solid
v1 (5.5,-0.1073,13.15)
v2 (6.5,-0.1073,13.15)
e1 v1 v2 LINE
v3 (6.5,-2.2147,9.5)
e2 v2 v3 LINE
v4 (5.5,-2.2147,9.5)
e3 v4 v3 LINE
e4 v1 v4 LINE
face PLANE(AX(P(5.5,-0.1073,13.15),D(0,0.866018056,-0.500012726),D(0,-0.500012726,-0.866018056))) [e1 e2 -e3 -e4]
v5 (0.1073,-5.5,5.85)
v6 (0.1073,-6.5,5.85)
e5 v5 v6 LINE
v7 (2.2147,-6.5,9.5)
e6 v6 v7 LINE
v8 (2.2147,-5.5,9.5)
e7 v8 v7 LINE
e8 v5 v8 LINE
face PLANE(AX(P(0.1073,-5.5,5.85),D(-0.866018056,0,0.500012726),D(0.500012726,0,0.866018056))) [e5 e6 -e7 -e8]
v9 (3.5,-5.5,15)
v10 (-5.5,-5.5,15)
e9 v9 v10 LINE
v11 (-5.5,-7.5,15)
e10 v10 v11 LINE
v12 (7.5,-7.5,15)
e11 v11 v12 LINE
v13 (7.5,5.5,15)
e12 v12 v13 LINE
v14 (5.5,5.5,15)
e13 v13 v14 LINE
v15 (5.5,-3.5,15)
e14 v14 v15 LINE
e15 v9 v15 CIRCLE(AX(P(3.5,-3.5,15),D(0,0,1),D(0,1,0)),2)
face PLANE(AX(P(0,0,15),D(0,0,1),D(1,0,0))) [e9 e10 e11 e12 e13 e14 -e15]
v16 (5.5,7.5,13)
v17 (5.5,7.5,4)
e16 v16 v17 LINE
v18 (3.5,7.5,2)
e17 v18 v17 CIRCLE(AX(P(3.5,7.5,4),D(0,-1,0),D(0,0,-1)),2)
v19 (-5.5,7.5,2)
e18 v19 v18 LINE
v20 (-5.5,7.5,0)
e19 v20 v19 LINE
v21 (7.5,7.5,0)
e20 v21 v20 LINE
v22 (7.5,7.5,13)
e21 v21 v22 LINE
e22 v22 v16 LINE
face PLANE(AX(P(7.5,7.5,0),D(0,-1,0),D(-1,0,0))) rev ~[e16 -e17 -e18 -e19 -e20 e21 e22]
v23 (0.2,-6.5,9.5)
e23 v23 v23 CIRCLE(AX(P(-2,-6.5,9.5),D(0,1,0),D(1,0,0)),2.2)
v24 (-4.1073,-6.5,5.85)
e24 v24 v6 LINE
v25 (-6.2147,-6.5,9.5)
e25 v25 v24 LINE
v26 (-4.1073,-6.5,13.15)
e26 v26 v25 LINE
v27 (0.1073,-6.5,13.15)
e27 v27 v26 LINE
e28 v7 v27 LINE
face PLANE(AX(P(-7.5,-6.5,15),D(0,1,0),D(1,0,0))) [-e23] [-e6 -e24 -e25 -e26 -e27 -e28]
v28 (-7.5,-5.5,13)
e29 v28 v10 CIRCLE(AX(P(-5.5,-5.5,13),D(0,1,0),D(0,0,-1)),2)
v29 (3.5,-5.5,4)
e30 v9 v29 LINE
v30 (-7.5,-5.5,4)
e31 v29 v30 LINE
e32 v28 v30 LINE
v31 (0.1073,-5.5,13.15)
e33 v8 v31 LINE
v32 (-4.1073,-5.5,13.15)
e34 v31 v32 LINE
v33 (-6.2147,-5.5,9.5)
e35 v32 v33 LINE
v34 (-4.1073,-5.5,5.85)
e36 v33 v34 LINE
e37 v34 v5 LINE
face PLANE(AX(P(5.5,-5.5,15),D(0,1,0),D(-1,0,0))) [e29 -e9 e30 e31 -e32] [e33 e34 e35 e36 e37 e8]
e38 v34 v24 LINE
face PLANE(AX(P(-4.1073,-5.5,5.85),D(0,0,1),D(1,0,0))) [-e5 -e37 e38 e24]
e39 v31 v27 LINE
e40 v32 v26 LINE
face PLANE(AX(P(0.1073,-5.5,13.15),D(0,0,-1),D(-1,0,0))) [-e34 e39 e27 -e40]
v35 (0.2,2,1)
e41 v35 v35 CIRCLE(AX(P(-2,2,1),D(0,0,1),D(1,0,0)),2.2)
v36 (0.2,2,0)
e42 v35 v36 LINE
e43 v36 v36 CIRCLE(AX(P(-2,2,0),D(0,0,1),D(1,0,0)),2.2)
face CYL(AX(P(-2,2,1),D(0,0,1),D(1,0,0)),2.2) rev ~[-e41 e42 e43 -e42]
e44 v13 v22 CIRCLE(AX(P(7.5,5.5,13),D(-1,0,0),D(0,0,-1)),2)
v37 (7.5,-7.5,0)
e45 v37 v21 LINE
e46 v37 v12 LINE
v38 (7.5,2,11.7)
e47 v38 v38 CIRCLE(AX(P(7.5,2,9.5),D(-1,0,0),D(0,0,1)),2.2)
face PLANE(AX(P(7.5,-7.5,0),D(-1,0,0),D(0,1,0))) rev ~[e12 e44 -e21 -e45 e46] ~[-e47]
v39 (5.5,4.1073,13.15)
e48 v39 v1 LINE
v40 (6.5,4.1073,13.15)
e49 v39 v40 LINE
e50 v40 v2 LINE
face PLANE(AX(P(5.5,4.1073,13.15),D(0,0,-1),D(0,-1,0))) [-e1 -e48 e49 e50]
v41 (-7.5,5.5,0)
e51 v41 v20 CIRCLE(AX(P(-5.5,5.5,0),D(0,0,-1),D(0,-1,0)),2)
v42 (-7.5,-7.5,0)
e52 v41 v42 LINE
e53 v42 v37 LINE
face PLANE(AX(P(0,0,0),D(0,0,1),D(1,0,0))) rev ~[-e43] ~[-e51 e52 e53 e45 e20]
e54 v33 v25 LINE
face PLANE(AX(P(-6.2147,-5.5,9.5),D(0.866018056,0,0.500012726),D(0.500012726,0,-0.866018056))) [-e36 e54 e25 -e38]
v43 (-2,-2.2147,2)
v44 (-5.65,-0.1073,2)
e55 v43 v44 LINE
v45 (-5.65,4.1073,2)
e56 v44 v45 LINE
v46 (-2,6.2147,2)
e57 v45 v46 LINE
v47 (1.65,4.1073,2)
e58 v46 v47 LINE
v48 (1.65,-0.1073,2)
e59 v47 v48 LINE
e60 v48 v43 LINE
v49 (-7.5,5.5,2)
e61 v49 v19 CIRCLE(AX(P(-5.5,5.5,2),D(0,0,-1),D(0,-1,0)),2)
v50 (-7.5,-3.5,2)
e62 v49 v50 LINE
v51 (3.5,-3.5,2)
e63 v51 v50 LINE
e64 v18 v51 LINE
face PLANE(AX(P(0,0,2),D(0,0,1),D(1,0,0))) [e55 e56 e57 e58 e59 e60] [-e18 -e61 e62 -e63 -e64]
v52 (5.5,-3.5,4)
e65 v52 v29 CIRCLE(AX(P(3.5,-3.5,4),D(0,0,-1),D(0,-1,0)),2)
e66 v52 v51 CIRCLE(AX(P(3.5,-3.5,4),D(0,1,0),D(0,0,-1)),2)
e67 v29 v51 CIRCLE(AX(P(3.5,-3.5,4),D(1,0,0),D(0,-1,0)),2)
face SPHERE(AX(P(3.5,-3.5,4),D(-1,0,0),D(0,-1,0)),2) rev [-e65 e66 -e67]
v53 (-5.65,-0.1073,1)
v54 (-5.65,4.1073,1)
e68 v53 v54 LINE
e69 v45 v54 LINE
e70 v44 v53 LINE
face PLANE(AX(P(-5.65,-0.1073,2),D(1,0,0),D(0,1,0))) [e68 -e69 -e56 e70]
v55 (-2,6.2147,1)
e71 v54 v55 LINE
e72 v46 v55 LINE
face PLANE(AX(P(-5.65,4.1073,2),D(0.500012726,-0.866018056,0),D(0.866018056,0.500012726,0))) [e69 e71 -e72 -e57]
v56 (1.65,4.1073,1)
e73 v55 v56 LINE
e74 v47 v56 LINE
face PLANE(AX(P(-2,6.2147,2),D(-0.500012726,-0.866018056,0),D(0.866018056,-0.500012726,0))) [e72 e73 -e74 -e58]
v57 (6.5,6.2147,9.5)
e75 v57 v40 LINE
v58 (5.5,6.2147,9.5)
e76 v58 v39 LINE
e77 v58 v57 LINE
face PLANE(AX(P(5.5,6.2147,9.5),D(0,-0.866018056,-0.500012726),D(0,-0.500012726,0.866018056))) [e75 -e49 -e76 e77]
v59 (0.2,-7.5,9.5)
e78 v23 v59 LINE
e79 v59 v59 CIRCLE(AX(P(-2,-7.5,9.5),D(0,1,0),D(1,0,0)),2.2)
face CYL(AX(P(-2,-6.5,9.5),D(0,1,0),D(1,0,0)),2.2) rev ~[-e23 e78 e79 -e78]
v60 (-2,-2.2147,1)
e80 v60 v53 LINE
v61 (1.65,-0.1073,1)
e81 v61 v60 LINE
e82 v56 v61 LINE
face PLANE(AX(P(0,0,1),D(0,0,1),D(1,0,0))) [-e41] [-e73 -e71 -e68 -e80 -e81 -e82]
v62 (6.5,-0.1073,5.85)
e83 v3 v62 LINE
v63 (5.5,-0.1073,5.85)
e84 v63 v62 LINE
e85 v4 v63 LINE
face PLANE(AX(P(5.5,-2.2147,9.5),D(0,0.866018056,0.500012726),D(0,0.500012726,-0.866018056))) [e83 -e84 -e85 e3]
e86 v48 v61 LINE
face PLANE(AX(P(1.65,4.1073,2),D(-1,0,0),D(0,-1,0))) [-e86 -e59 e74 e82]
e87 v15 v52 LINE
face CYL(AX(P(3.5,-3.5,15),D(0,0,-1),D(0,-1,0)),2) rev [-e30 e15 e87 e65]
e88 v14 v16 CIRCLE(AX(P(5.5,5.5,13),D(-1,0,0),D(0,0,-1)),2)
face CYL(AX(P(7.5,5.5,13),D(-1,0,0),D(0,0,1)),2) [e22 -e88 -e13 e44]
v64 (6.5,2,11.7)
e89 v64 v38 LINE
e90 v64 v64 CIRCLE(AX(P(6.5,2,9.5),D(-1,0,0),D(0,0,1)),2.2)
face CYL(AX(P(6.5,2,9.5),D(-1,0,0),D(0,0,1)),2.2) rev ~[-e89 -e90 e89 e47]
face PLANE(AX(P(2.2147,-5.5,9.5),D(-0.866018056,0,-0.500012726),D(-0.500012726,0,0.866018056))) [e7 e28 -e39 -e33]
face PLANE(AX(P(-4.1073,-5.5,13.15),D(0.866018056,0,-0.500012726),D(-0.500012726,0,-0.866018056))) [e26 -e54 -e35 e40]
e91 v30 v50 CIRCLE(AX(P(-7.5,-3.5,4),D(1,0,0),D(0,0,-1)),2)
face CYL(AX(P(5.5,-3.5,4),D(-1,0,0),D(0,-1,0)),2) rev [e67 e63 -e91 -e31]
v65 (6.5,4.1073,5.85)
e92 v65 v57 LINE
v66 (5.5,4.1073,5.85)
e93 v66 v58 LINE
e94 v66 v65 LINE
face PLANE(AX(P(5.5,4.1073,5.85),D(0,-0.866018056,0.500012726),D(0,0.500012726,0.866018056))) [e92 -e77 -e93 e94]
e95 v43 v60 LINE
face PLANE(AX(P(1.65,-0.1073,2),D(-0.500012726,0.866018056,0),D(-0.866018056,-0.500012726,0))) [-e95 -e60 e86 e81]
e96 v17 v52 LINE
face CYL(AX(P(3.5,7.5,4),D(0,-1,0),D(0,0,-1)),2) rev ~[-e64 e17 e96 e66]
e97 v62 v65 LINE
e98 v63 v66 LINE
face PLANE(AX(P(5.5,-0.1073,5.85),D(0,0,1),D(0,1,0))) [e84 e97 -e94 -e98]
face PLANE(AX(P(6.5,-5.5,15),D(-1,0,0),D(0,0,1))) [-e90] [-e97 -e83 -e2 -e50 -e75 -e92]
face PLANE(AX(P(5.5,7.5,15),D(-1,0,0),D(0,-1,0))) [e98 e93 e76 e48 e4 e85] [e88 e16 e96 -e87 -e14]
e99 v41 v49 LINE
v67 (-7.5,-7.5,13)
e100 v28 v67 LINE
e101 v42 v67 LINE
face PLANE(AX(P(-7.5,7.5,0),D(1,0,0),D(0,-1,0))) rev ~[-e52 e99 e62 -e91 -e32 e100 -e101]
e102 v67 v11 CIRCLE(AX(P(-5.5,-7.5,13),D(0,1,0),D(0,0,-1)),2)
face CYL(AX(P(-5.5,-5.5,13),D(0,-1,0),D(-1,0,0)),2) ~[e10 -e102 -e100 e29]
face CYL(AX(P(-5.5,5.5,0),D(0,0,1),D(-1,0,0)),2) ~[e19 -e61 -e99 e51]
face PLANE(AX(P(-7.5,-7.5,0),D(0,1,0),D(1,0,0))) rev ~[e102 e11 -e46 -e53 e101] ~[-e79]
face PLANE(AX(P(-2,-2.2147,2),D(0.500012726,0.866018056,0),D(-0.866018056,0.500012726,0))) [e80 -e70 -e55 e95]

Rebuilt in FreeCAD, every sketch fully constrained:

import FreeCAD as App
import Part
import Sketcher
from FreeCAD import Vector
Q = App.Units.Quantity


def edges_at(feature, points):
    """Names of the edges that pass closest to the given points."""
    edges = feature.Shape.Edges
    near = lambda p: min(range(len(edges)), key=lambda i: edges[i].distToShape(Part.Vertex(*p))[0])
    return sorted({f"Edge{near(p) + 1}" for p in points})

doc = App.newDocument("Part")
body = doc.addObject("PartDesign::Body", "Body")

# Sketch on XY plane
sketch1 = body.newObject("Sketcher::SketchObject", "Sketch")
sketch1.AttachmentSupport = (doc.getObject("XY_Plane"), [""])
sketch1.MapMode = "FlatFace"
sketch1.addGeometry(Part.LineSegment(Vector(-8, 8, 0), Vector(-8, -8, 0)), False)
sketch1.addGeometry(Part.LineSegment(Vector(-8, -8, 0), Vector(8, -8, 0)), False)
sketch1.addGeometry(Part.LineSegment(Vector(8, -8, 0), Vector(8, 8, 0)), False)
sketch1.addGeometry(Part.LineSegment(Vector(8, 8, 0), Vector(-8, 8, 0)), False)
sketch1.addConstraint(Sketcher.Constraint("Coincident", 0, 2, 1, 1))
sketch1.addConstraint(Sketcher.Constraint("Coincident", 1, 2, 2, 1))
sketch1.addConstraint(Sketcher.Constraint("Coincident", 2, 2, 3, 1))
sketch1.addConstraint(Sketcher.Constraint("Coincident", 3, 2, 0, 1))
sketch1.addConstraint(Sketcher.Constraint("Vertical", 0))
sketch1.addConstraint(Sketcher.Constraint("Horizontal", 1))
sketch1.addConstraint(Sketcher.Constraint("Vertical", 2))
sketch1.addConstraint(Sketcher.Constraint("Horizontal", 3))
sketch1.addConstraint(Sketcher.Constraint("Symmetric", 0, 2, 2, 2, -1, 1))
sketch1.addConstraint(Sketcher.Constraint("Equal", 3, 0))
sketch1.addConstraint(Sketcher.Constraint("DistanceX", 1, 1, 1, 2, 15.0))
pad1 = body.newObject("PartDesign::Pad", "Pad")
pad1.Profile = sketch1
pad1.Length = 15

# Sketch on XY plane
sketch2 = body.newObject("Sketcher::SketchObject", "Sketch001")
sketch2.AttachmentSupport = (doc.getObject("XY_Plane"), [""])
sketch2.MapMode = "FlatFace"
sketch2.AttachmentOffset = App.Placement(Vector(0, 0, 15), App.Rotation())
sketch2.addGeometry(Part.LineSegment(Vector(6, 8, 0), Vector(-8, 8, 0)), False)
sketch2.addGeometry(Part.LineSegment(Vector(-8, 8, 0), Vector(-8, -6, 0)), False)
sketch2.addGeometry(Part.LineSegment(Vector(-8, -6, 0), Vector(6, -6, 0)), False)
sketch2.addGeometry(Part.LineSegment(Vector(6, -6, 0), Vector(6, 8, 0)), False)
sketch2.addConstraint(Sketcher.Constraint("Coincident", 0, 2, 1, 1))
sketch2.addConstraint(Sketcher.Constraint("Coincident", 1, 2, 2, 1))
sketch2.addConstraint(Sketcher.Constraint("Coincident", 2, 2, 3, 1))
sketch2.addConstraint(Sketcher.Constraint("Coincident", 3, 2, 0, 1))
sketch2.addConstraint(Sketcher.Constraint("Horizontal", 0))
sketch2.addConstraint(Sketcher.Constraint("Vertical", 1))
sketch2.addConstraint(Sketcher.Constraint("Horizontal", 2))
sketch2.addConstraint(Sketcher.Constraint("Vertical", 3))
sketch2.addConstraint(Sketcher.Constraint("Equal", 2, 1))
sketch2.addConstraint(Sketcher.Constraint("DistanceX", 0, 2, 0, 1, 13.0))
sketch2.addConstraint(Sketcher.Constraint("DistanceX", 0, 2, -1, 1, 7.5))
sketch2.addConstraint(Sketcher.Constraint("DistanceY", -1, 1, 0, 2, 7.5))
pocket1 = body.newObject("PartDesign::Pocket", "Pocket")
pocket1.Profile = sketch2
pocket1.Length = 13

# Sketch on YZ plane
sketch3 = body.newObject("Sketcher::SketchObject", "Sketch002")
sketch3.AttachmentSupport = (doc.getObject("YZ_Plane"), [""])
sketch3.MapMode = "FlatFace"
sketch3.AttachmentOffset = App.Placement(Vector(0, 0, 5.5), App.Rotation())
sketch3.addGeometry(Part.LineSegment(Vector(4.1, 13.2, 0), Vector(6.2, 9.5, 0)), False)
sketch3.addGeometry(Part.LineSegment(Vector(6.2, 9.5, 0), Vector(4.1, 5.8, 0)), False)
sketch3.addGeometry(Part.LineSegment(Vector(4.1, 5.8, 0), Vector(-0.1, 5.8, 0)), False)
sketch3.addGeometry(Part.LineSegment(Vector(-0.1, 5.8, 0), Vector(-2.2, 9.5, 0)), False)
sketch3.addGeometry(Part.LineSegment(Vector(-2.2, 9.5, 0), Vector(-0.1, 13.2, 0)), False)
sketch3.addGeometry(Part.LineSegment(Vector(-0.1, 13.2, 0), Vector(4.1, 13.2, 0)), False)
sketch3.addConstraint(Sketcher.Constraint("Coincident", 0, 2, 1, 1))
sketch3.addConstraint(Sketcher.Constraint("Coincident", 1, 2, 2, 1))
sketch3.addConstraint(Sketcher.Constraint("Coincident", 2, 2, 3, 1))
sketch3.addConstraint(Sketcher.Constraint("Coincident", 3, 2, 4, 1))
sketch3.addConstraint(Sketcher.Constraint("Coincident", 4, 2, 5, 1))
sketch3.addConstraint(Sketcher.Constraint("Coincident", 5, 2, 0, 1))
sketch3.addConstraint(Sketcher.Constraint("Horizontal", 2))
sketch3.addConstraint(Sketcher.Constraint("Horizontal", 5))
sketch3.addConstraint(Sketcher.Constraint("Parallel", 0, 3))
sketch3.addConstraint(Sketcher.Constraint("Parallel", 1, 4))
sketch3.addConstraint(Sketcher.Constraint("Horizontal", 0, 2, 3, 2))
sketch3.addConstraint(Sketcher.Constraint("Vertical", 2, 2, 4, 2))
sketch3.addConstraint(Sketcher.Constraint("Vertical", 1, 2, 5, 2))
sketch3.addConstraint(Sketcher.Constraint("DistanceY", 2, 2, 4, 2, 7.3))
sketch3.addConstraint(Sketcher.Constraint("Angle", 0, Q("-59.9992 deg")))
sketch3.addConstraint(Sketcher.Constraint("DistanceY", -1, 1, 0, 2, 9.5))
sketch3.addConstraint(Sketcher.Constraint("DistanceX", 2, 2, 2, 1, 4.2146))
sketch3.addConstraint(Sketcher.Constraint("DistanceX", -1, 1, 0, 2, 6.2147))
pocket2 = body.newObject("PartDesign::Pocket", "Pocket001")
pocket2.Profile = sketch3
pocket2.Length = 1
pocket2.Reversed = True

# Sketch on YZ plane
sketch4 = body.newObject("Sketcher::SketchObject", "Sketch003")
sketch4.AttachmentSupport = (doc.getObject("YZ_Plane"), [""])
sketch4.MapMode = "FlatFace"
sketch4.AttachmentOffset = App.Placement(Vector(0, 0, 6.5), App.Rotation())
sketch4.addGeometry(Part.Circle(Vector(2, 9.5, 0), Vector(0, 0, 1), 2.2), False)
sketch4.addConstraint(Sketcher.Constraint("Diameter", 0, 4.4))
sketch4.addConstraint(Sketcher.Constraint("DistanceX", -1, 1, 0, 3, 2.0))
sketch4.addConstraint(Sketcher.Constraint("DistanceY", -1, 1, 0, 3, 9.5))
pocket3 = body.newObject("PartDesign::Pocket", "Pocket002")
pocket3.Profile = sketch4
pocket3.Length = 1
pocket3.Reversed = True

# Sketch on XZ plane
sketch5 = body.newObject("Sketcher::SketchObject", "Sketch004")
sketch5.AttachmentSupport = (doc.getObject("XZ_Plane"), [""])
sketch5.MapMode = "FlatFace"
sketch5.AttachmentOffset = App.Placement(Vector(0, 0, 5.5), App.Rotation())
sketch5.addGeometry(Part.LineSegment(Vector(-6.2, 9.5, 0), Vector(-4.1, 13.2, 0)), False)
sketch5.addGeometry(Part.LineSegment(Vector(-4.1, 13.2, 0), Vector(0.1, 13.2, 0)), False)
sketch5.addGeometry(Part.LineSegment(Vector(0.1, 13.2, 0), Vector(2.2, 9.5, 0)), False)
sketch5.addGeometry(Part.LineSegment(Vector(2.2, 9.5, 0), Vector(0.1, 5.8, 0)), False)
sketch5.addGeometry(Part.LineSegment(Vector(0.1, 5.8, 0), Vector(-4.1, 5.8, 0)), False)
sketch5.addGeometry(Part.LineSegment(Vector(-4.1, 5.8, 0), Vector(-6.2, 9.5, 0)), False)
sketch5.addConstraint(Sketcher.Constraint("Coincident", 0, 2, 1, 1))
sketch5.addConstraint(Sketcher.Constraint("Coincident", 1, 2, 2, 1))
sketch5.addConstraint(Sketcher.Constraint("Coincident", 2, 2, 3, 1))
sketch5.addConstraint(Sketcher.Constraint("Coincident", 3, 2, 4, 1))
sketch5.addConstraint(Sketcher.Constraint("Coincident", 4, 2, 5, 1))
sketch5.addConstraint(Sketcher.Constraint("Coincident", 5, 2, 0, 1))
sketch5.addConstraint(Sketcher.Constraint("Horizontal", 1))
sketch5.addConstraint(Sketcher.Constraint("Horizontal", 4))
sketch5.addConstraint(Sketcher.Constraint("Parallel", 0, 3))
sketch5.addConstraint(Sketcher.Constraint("Parallel", 2, 5))
sketch5.addConstraint(Sketcher.Constraint("Horizontal", 2, 2, 5, 2))
sketch5.addConstraint(Sketcher.Constraint("Vertical", 1, 2, 3, 2))
sketch5.addConstraint(Sketcher.Constraint("Vertical", 0, 2, 4, 2))
sketch5.addConstraint(Sketcher.Constraint("DistanceY", 3, 2, 1, 2, 7.3))
sketch5.addConstraint(Sketcher.Constraint("Angle", 0, Q("59.9992 deg")))
sketch5.addConstraint(Sketcher.Constraint("DistanceY", -1, 1, 2, 2, 9.5))
sketch5.addConstraint(Sketcher.Constraint("DistanceX", 1, 1, 1, 2, 4.2146))
sketch5.addConstraint(Sketcher.Constraint("DistanceX", 0, 2, -1, 1, 4.1073))
pocket4 = body.newObject("PartDesign::Pocket", "Pocket003")
pocket4.Profile = sketch5
pocket4.Length = 1
pocket4.Reversed = True

# Sketch on XZ plane
sketch6 = body.newObject("Sketcher::SketchObject", "Sketch005")
sketch6.AttachmentSupport = (doc.getObject("XZ_Plane"), [""])
sketch6.MapMode = "FlatFace"
sketch6.AttachmentOffset = App.Placement(Vector(0, 0, 6.5), App.Rotation())
sketch6.addGeometry(Part.Circle(Vector(-2, 9.5, 0), Vector(0, 0, 1), 2.2), False)
sketch6.addConstraint(Sketcher.Constraint("Diameter", 0, 4.4))
sketch6.addConstraint(Sketcher.Constraint("DistanceX", 0, 3, -1, 1, 2.0))
sketch6.addConstraint(Sketcher.Constraint("DistanceY", -1, 1, 0, 3, 9.5))
pocket5 = body.newObject("PartDesign::Pocket", "Pocket004")
pocket5.Profile = sketch6
pocket5.Length = 1
pocket5.Reversed = True

# Sketch on XY plane
sketch7 = body.newObject("Sketcher::SketchObject", "Sketch006")
sketch7.AttachmentSupport = (doc.getObject("XY_Plane"), [""])
sketch7.MapMode = "FlatFace"
sketch7.AttachmentOffset = App.Placement(Vector(0, 0, 2), App.Rotation())
sketch7.addGeometry(Part.LineSegment(Vector(-2, -2.2, 0), Vector(1.6, -0.1, 0)), False)
sketch7.addGeometry(Part.LineSegment(Vector(1.6, -0.1, 0), Vector(1.6, 4.1, 0)), False)
sketch7.addGeometry(Part.LineSegment(Vector(1.6, 4.1, 0), Vector(-2, 6.2, 0)), False)
sketch7.addGeometry(Part.LineSegment(Vector(-2, 6.2, 0), Vector(-5.7, 4.1, 0)), False)
sketch7.addGeometry(Part.LineSegment(Vector(-5.7, 4.1, 0), Vector(-5.7, -0.1, 0)), False)
sketch7.addGeometry(Part.LineSegment(Vector(-5.7, -0.1, 0), Vector(-2, -2.2, 0)), False)
sketch7.addConstraint(Sketcher.Constraint("Coincident", 0, 2, 1, 1))
sketch7.addConstraint(Sketcher.Constraint("Coincident", 1, 2, 2, 1))
sketch7.addConstraint(Sketcher.Constraint("Coincident", 2, 2, 3, 1))
sketch7.addConstraint(Sketcher.Constraint("Coincident", 3, 2, 4, 1))
sketch7.addConstraint(Sketcher.Constraint("Coincident", 4, 2, 5, 1))
sketch7.addConstraint(Sketcher.Constraint("Coincident", 5, 2, 0, 1))
sketch7.addConstraint(Sketcher.Constraint("Vertical", 1))
sketch7.addConstraint(Sketcher.Constraint("Vertical", 4))
sketch7.addConstraint(Sketcher.Constraint("Parallel", 0, 3))
sketch7.addConstraint(Sketcher.Constraint("Parallel", 2, 5))
sketch7.addConstraint(Sketcher.Constraint("Horizontal", 1, 2, 3, 2))
sketch7.addConstraint(Sketcher.Constraint("Horizontal", 0, 2, 4, 2))
sketch7.addConstraint(Sketcher.Constraint("Vertical", 2, 2, 5, 2))
sketch7.addConstraint(Sketcher.Constraint("DistanceX", 3, 2, 1, 2, 7.3))
sketch7.addConstraint(Sketcher.Constraint("Angle", 0, Q("30.0008 deg")))
sketch7.addConstraint(Sketcher.Constraint("DistanceX", 2, 2, -1, 1, 2.0))
sketch7.addConstraint(Sketcher.Constraint("DistanceY", 1, 1, 1, 2, 4.2146))
sketch7.addConstraint(Sketcher.Constraint("DistanceY", 0, 2, -1, 1, 0.1073))
pocket6 = body.newObject("PartDesign::Pocket", "Pocket005")
pocket6.Profile = sketch7
pocket6.Length = 1

# Sketch on XY plane
sketch8 = body.newObject("Sketcher::SketchObject", "Sketch007")
sketch8.AttachmentSupport = (doc.getObject("XY_Plane"), [""])
sketch8.MapMode = "FlatFace"
sketch8.AttachmentOffset = App.Placement(Vector(0, 0, 1), App.Rotation())
sketch8.addGeometry(Part.Circle(Vector(-2, 2, 0), Vector(0, 0, 1), 2.2), False)
sketch8.addConstraint(Sketcher.Constraint("Diameter", 0, 4.4))
sketch8.addConstraint(Sketcher.Constraint("DistanceX", 0, 3, -1, 1, 2.0))
sketch8.addConstraint(Sketcher.Constraint("DistanceY", -1, 1, 0, 3, 2.0))
pocket7 = body.newObject("PartDesign::Pocket", "Pocket006")
pocket7.Profile = sketch8
pocket7.Length = 1
doc.recompute()

fillet = body.newObject("PartDesign::Fillet", "Fillet")
fillet.Base = (pocket7, edges_at(pocket7, [(-1, -5.5, 2), (5.5, -5.5, 8.5), (5.5, 1, 2)]))
fillet.Radius = 2
doc.recompute()

fillet2 = body.newObject("PartDesign::Fillet", "Fillet001")
fillet2.Base = (fillet, edges_at(fillet, [(-7.5, 7.5, 1), (6.5, 7.5, 15), (-7.5, -6.5, 15)]))
fillet2.Radius = 2

doc.recompute()
